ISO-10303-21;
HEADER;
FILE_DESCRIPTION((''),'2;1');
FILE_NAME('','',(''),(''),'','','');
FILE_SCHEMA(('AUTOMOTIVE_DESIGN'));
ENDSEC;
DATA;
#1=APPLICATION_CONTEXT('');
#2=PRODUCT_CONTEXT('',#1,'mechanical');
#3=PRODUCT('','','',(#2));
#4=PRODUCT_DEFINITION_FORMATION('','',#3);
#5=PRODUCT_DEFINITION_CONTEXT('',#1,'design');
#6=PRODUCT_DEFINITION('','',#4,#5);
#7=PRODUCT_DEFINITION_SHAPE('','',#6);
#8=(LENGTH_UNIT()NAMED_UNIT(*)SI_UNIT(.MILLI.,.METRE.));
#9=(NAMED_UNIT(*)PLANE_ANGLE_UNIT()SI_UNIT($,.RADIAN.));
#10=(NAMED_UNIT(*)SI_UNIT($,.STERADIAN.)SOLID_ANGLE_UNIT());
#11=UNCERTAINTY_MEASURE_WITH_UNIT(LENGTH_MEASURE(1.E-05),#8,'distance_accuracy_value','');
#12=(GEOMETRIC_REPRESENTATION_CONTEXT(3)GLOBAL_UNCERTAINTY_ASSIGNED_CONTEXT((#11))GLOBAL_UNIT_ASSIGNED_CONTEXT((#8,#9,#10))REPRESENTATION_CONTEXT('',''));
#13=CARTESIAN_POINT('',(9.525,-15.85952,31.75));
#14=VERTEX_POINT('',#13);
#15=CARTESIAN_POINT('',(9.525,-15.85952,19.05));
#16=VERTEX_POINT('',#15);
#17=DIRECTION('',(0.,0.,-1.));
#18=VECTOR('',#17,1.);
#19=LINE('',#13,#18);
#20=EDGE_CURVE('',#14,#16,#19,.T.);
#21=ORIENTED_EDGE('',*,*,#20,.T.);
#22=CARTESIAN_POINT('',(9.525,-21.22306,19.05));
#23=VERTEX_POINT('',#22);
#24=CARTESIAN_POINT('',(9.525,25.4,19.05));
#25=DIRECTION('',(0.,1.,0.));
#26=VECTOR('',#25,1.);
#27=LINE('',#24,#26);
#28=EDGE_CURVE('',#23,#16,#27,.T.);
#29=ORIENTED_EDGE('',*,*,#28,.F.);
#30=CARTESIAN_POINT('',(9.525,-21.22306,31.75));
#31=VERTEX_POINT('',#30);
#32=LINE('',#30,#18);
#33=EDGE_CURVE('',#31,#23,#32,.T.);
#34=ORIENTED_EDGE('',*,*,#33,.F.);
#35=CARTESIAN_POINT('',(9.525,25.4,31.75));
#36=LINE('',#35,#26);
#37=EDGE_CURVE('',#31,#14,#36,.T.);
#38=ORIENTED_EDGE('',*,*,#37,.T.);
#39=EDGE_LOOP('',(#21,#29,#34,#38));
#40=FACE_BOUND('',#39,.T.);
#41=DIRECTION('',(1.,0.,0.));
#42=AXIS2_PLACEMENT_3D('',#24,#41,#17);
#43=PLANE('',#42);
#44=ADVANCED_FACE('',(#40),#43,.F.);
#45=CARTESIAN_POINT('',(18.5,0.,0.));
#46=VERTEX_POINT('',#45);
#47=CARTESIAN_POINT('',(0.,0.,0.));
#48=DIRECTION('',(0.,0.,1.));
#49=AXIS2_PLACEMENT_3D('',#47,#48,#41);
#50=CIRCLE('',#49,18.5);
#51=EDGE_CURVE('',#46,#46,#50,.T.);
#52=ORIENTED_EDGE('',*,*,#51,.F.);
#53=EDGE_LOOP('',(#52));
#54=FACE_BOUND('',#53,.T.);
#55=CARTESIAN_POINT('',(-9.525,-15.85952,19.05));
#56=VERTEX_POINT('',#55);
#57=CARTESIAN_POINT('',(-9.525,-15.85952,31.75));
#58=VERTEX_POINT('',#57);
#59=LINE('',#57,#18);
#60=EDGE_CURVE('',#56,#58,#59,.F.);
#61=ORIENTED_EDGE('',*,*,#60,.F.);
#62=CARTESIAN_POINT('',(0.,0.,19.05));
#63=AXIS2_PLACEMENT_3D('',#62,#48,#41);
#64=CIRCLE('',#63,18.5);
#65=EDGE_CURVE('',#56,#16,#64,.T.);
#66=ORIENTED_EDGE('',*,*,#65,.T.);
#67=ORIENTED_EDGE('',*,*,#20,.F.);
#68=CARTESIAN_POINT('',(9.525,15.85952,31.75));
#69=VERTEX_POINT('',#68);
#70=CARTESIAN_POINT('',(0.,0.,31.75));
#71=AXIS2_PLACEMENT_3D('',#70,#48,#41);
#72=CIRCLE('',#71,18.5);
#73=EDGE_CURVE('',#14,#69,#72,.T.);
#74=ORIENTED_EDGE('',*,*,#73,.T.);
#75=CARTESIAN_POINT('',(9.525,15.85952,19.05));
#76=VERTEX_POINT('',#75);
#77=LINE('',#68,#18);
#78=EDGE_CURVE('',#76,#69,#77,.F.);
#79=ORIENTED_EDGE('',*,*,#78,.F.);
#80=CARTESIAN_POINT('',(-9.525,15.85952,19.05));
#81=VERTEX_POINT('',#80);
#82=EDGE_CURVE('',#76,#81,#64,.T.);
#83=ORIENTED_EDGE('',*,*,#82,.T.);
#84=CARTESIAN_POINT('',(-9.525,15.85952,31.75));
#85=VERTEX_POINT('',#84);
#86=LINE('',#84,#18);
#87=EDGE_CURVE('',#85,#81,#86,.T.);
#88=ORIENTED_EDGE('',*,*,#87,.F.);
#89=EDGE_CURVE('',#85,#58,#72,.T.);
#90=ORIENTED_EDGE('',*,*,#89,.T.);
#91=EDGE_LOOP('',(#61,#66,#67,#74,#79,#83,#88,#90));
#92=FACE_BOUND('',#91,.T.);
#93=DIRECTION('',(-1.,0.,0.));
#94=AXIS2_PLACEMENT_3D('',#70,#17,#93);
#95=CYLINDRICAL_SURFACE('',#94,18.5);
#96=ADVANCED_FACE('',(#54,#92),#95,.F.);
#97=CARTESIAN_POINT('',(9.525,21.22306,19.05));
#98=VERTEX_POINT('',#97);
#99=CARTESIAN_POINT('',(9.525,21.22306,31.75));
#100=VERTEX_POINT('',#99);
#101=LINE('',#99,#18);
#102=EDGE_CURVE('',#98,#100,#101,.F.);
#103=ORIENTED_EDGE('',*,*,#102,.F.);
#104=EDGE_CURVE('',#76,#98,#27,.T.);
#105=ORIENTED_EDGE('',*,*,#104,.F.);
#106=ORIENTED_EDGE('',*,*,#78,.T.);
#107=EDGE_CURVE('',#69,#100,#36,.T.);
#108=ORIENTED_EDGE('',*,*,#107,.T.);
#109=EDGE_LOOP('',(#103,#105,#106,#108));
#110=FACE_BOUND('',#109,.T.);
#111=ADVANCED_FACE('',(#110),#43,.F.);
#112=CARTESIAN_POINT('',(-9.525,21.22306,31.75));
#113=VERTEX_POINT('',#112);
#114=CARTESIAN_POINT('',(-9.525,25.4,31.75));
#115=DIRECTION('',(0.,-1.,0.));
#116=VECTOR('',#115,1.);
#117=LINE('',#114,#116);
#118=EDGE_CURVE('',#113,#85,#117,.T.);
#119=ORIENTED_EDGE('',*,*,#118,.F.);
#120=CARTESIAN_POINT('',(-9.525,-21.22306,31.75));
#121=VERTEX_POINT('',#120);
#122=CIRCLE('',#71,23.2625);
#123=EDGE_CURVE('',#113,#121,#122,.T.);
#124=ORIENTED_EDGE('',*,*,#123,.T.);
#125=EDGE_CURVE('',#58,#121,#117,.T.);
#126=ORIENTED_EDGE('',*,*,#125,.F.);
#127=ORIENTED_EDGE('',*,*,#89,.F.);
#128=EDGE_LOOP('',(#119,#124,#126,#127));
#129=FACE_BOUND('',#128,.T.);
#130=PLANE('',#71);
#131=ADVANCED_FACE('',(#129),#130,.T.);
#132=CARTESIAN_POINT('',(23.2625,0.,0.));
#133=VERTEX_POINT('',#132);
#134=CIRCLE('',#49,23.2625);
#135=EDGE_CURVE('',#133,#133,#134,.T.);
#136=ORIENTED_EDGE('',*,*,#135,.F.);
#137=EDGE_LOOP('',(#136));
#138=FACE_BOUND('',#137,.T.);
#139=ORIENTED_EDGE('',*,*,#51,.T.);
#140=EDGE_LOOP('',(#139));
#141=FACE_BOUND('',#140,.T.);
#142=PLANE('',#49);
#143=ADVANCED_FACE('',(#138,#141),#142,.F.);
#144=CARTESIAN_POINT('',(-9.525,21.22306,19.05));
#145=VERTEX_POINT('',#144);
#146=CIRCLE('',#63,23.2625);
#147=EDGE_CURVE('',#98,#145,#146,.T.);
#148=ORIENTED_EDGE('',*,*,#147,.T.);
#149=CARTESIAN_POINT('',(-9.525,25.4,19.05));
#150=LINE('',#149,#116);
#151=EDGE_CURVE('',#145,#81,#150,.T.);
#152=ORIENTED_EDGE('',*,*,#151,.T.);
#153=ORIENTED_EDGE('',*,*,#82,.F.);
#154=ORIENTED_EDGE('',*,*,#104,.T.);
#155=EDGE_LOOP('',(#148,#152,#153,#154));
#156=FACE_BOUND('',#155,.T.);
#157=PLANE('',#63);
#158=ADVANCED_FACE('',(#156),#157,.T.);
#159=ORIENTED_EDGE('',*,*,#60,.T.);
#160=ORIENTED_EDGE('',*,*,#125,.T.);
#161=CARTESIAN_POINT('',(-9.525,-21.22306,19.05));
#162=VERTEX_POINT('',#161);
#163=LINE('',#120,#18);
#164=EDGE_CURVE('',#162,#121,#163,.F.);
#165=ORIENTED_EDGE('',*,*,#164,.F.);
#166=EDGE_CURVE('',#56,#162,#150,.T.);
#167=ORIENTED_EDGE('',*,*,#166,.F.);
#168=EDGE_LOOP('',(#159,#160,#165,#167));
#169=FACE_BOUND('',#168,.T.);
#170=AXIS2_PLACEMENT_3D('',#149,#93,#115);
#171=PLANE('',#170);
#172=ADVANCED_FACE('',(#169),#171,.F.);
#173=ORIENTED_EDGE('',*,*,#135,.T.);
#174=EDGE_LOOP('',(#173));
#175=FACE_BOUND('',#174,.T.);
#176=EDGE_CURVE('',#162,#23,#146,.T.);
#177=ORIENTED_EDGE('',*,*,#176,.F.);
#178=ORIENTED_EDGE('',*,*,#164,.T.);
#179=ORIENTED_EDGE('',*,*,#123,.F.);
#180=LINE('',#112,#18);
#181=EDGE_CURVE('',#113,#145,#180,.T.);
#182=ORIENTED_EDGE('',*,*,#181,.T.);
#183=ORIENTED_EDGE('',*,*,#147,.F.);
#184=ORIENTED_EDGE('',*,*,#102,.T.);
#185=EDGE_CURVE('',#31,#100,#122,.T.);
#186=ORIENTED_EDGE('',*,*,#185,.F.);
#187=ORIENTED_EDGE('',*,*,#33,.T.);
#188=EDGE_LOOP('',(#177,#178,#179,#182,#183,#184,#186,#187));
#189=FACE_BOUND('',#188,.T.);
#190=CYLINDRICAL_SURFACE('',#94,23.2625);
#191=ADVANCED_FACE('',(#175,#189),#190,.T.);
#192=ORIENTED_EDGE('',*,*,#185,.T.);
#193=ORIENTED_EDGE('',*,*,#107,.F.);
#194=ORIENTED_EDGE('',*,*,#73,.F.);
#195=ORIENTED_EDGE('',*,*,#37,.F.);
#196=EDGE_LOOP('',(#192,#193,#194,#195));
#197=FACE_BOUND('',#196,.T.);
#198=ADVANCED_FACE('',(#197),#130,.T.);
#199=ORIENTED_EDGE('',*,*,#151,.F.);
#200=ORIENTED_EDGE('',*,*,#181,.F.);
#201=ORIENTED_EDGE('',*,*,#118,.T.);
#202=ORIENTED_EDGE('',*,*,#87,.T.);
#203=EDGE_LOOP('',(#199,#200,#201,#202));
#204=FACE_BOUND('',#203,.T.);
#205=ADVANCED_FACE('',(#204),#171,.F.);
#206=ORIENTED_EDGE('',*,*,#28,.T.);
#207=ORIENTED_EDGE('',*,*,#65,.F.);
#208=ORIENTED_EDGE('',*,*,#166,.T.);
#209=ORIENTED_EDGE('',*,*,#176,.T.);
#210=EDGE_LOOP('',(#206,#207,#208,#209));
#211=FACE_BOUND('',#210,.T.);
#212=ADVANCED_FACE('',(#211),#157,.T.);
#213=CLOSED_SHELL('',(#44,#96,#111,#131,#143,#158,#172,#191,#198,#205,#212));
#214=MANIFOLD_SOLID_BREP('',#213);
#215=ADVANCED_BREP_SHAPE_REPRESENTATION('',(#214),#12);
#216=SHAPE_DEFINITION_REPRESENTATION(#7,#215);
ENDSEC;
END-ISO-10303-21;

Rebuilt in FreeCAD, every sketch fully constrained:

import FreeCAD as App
import Part
import Sketcher

V = App.Vector
Q = App.Units.Quantity

doc = App.newDocument("Part")
params = doc.addObject("Spreadsheet::Sheet", "Params")
for row, (alias, value) in enumerate([
    ("pad1_length", "1.25 in"),
    ("sketch2_height", "2 in"),
    ("sketch2_width", "0.75 in"),
    ("pocket1_length", "0.5 in"),
], start=1):
    params.set(f"A{row}", alias)
    params.set(f"B{row}", "=" + value)
    params.setAlias(f"B{row}", alias)

body = doc.addObject("PartDesign::Body", "Body")

# Sketch on XY plane
sketch1 = body.newObject("Sketcher::SketchObject", "Sketch")
sketch1.AttachmentSupport = (doc.getObject("XY_Plane"), [""])
sketch1.MapMode = "FlatFace"
sketch1.addGeometry([
    Part.Circle(V(0, 0, 0), V(0, 0, 1), 23.2625),
    Part.Circle(V(0, 0, 0), V(0, 0, 1), 18.5),
], False)
sketch1.addConstraint([
    Sketcher.Constraint("Coincident", 0, 3, -1, 1),
    Sketcher.Constraint("Coincident", 1, 3, -1, 1),
    Sketcher.Constraint("Diameter", 0, 46.525),
    Sketcher.Constraint("Diameter", 1, 37.0),
])
pad1 = body.newObject("PartDesign::Pad", "Pad")
pad1.Profile = sketch1
pad1.setExpression("Length", "Params.pad1_length")

# Sketch on XY plane
sketch2 = body.newObject("Sketcher::SketchObject", "Sketch001")
sketch2.AttachmentSupport = (doc.getObject("XY_Plane"), [""])
sketch2.MapMode = "FlatFace"
sketch2.AttachmentOffset = App.Placement(V(0, 0, 1.25 * 25.4), App.Rotation())
sketch2.addGeometry([
    Part.LineSegment(V(-9.525, 25.4, 0), V(-9.525, -25.4, 0)),
    Part.LineSegment(V(-9.525, -25.4, 0), V(9.525, -25.4, 0)),
    Part.LineSegment(V(9.525, -25.4, 0), V(9.525, 25.4, 0)),
    Part.LineSegment(V(9.525, 25.4, 0), V(-9.525, 25.4, 0)),
], False)
sketch2.addConstraint([
    Sketcher.Constraint("Coincident", 0, 2, 1, 1),
    Sketcher.Constraint("Coincident", 1, 2, 2, 1),
    Sketcher.Constraint("Coincident", 2, 2, 3, 1),
    Sketcher.Constraint("Coincident", 3, 2, 0, 1),
    Sketcher.Constraint("Vertical", 0),
    Sketcher.Constraint("Horizontal", 1),
    Sketcher.Constraint("Vertical", 2),
    Sketcher.Constraint("Horizontal", 3),
    Sketcher.Constraint("Symmetric", 0, 2, 2, 2, -1, 1),
    Sketcher.Constraint("DistanceY", 0, 2, 0, 1, Q("2 in")),
    Sketcher.Constraint("DistanceX", 1, 1, 1, 2, Q("0.75 in")),
])
sketch2.setExpression("Constraints[9]", "Params.sketch2_height")
sketch2.setExpression("Constraints[10]", "Params.sketch2_width")
pocket1 = body.newObject("PartDesign::Pocket", "Pocket")
pocket1.Profile = sketch2
pocket1.setExpression("Length", "Params.pocket1_length")

doc.recompute()
